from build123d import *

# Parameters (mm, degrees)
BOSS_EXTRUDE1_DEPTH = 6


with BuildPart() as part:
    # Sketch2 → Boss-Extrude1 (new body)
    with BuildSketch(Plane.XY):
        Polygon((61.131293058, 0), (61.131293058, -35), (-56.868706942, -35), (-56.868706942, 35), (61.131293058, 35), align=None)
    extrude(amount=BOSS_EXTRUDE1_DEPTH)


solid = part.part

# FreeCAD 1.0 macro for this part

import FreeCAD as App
import Part
import Sketcher
Q = App.Units.Quantity


def add_polygon(sketch, points):
    """Adds a closed chain of lines whose ends are joined by coincident constraints."""
    first, n = sketch.GeometryCount, len(points)
    for a, b in zip(points, points[1:] + points[:1]):
        sketch.addGeometry(Part.LineSegment(App.Vector(*a, 0), App.Vector(*b, 0)), False)
    for i in range(n):
        sketch.addConstraint(Sketcher.Constraint("Coincident", first + i, 2, first + (i + 1) % n, 1))

doc = App.newDocument("Part")
body = doc.addObject("PartDesign::Body", "Body")

# Sketch on XY plane
sketch1 = doc.addObject("Sketcher::SketchObject", "Sketch")
body.addObject(sketch1)
sketch1.AttachmentSupport = (doc.XY_Plane, [""])
sketch1.MapMode = "FlatFace"
add_polygon(sketch1, [(61, -35), (61, 35), (-57, 35), (-57, -35)])  # lines 0-3
sketch1.addConstraint(Sketcher.Constraint("Vertical", 0))
sketch1.addConstraint(Sketcher.Constraint("Horizontal", 1))
sketch1.addConstraint(Sketcher.Constraint("Vertical", 2))
sketch1.addConstraint(Sketcher.Constraint("Horizontal", 3))
sketch1.addConstraint(Sketcher.Constraint("DistanceX", 1, 2, 1, 1, Q("118 mm")))
sketch1.addConstraint(Sketcher.Constraint("DistanceY", 0, 1, 0, 2, Q("70 mm")))
sketch1.addConstraint(Sketcher.Constraint("DistanceY", -1, 1, 0, 2, Q("35 mm")))
sketch1.addConstraint(Sketcher.Constraint("DistanceX", -1, 1, 0, 2, Q("61.131293 mm")))
pad1 = doc.addObject("PartDesign::Pad", "Pad")
body.addObject(pad1)
pad1.Profile = sketch1
pad1.Length = 6

doc.recompute()
